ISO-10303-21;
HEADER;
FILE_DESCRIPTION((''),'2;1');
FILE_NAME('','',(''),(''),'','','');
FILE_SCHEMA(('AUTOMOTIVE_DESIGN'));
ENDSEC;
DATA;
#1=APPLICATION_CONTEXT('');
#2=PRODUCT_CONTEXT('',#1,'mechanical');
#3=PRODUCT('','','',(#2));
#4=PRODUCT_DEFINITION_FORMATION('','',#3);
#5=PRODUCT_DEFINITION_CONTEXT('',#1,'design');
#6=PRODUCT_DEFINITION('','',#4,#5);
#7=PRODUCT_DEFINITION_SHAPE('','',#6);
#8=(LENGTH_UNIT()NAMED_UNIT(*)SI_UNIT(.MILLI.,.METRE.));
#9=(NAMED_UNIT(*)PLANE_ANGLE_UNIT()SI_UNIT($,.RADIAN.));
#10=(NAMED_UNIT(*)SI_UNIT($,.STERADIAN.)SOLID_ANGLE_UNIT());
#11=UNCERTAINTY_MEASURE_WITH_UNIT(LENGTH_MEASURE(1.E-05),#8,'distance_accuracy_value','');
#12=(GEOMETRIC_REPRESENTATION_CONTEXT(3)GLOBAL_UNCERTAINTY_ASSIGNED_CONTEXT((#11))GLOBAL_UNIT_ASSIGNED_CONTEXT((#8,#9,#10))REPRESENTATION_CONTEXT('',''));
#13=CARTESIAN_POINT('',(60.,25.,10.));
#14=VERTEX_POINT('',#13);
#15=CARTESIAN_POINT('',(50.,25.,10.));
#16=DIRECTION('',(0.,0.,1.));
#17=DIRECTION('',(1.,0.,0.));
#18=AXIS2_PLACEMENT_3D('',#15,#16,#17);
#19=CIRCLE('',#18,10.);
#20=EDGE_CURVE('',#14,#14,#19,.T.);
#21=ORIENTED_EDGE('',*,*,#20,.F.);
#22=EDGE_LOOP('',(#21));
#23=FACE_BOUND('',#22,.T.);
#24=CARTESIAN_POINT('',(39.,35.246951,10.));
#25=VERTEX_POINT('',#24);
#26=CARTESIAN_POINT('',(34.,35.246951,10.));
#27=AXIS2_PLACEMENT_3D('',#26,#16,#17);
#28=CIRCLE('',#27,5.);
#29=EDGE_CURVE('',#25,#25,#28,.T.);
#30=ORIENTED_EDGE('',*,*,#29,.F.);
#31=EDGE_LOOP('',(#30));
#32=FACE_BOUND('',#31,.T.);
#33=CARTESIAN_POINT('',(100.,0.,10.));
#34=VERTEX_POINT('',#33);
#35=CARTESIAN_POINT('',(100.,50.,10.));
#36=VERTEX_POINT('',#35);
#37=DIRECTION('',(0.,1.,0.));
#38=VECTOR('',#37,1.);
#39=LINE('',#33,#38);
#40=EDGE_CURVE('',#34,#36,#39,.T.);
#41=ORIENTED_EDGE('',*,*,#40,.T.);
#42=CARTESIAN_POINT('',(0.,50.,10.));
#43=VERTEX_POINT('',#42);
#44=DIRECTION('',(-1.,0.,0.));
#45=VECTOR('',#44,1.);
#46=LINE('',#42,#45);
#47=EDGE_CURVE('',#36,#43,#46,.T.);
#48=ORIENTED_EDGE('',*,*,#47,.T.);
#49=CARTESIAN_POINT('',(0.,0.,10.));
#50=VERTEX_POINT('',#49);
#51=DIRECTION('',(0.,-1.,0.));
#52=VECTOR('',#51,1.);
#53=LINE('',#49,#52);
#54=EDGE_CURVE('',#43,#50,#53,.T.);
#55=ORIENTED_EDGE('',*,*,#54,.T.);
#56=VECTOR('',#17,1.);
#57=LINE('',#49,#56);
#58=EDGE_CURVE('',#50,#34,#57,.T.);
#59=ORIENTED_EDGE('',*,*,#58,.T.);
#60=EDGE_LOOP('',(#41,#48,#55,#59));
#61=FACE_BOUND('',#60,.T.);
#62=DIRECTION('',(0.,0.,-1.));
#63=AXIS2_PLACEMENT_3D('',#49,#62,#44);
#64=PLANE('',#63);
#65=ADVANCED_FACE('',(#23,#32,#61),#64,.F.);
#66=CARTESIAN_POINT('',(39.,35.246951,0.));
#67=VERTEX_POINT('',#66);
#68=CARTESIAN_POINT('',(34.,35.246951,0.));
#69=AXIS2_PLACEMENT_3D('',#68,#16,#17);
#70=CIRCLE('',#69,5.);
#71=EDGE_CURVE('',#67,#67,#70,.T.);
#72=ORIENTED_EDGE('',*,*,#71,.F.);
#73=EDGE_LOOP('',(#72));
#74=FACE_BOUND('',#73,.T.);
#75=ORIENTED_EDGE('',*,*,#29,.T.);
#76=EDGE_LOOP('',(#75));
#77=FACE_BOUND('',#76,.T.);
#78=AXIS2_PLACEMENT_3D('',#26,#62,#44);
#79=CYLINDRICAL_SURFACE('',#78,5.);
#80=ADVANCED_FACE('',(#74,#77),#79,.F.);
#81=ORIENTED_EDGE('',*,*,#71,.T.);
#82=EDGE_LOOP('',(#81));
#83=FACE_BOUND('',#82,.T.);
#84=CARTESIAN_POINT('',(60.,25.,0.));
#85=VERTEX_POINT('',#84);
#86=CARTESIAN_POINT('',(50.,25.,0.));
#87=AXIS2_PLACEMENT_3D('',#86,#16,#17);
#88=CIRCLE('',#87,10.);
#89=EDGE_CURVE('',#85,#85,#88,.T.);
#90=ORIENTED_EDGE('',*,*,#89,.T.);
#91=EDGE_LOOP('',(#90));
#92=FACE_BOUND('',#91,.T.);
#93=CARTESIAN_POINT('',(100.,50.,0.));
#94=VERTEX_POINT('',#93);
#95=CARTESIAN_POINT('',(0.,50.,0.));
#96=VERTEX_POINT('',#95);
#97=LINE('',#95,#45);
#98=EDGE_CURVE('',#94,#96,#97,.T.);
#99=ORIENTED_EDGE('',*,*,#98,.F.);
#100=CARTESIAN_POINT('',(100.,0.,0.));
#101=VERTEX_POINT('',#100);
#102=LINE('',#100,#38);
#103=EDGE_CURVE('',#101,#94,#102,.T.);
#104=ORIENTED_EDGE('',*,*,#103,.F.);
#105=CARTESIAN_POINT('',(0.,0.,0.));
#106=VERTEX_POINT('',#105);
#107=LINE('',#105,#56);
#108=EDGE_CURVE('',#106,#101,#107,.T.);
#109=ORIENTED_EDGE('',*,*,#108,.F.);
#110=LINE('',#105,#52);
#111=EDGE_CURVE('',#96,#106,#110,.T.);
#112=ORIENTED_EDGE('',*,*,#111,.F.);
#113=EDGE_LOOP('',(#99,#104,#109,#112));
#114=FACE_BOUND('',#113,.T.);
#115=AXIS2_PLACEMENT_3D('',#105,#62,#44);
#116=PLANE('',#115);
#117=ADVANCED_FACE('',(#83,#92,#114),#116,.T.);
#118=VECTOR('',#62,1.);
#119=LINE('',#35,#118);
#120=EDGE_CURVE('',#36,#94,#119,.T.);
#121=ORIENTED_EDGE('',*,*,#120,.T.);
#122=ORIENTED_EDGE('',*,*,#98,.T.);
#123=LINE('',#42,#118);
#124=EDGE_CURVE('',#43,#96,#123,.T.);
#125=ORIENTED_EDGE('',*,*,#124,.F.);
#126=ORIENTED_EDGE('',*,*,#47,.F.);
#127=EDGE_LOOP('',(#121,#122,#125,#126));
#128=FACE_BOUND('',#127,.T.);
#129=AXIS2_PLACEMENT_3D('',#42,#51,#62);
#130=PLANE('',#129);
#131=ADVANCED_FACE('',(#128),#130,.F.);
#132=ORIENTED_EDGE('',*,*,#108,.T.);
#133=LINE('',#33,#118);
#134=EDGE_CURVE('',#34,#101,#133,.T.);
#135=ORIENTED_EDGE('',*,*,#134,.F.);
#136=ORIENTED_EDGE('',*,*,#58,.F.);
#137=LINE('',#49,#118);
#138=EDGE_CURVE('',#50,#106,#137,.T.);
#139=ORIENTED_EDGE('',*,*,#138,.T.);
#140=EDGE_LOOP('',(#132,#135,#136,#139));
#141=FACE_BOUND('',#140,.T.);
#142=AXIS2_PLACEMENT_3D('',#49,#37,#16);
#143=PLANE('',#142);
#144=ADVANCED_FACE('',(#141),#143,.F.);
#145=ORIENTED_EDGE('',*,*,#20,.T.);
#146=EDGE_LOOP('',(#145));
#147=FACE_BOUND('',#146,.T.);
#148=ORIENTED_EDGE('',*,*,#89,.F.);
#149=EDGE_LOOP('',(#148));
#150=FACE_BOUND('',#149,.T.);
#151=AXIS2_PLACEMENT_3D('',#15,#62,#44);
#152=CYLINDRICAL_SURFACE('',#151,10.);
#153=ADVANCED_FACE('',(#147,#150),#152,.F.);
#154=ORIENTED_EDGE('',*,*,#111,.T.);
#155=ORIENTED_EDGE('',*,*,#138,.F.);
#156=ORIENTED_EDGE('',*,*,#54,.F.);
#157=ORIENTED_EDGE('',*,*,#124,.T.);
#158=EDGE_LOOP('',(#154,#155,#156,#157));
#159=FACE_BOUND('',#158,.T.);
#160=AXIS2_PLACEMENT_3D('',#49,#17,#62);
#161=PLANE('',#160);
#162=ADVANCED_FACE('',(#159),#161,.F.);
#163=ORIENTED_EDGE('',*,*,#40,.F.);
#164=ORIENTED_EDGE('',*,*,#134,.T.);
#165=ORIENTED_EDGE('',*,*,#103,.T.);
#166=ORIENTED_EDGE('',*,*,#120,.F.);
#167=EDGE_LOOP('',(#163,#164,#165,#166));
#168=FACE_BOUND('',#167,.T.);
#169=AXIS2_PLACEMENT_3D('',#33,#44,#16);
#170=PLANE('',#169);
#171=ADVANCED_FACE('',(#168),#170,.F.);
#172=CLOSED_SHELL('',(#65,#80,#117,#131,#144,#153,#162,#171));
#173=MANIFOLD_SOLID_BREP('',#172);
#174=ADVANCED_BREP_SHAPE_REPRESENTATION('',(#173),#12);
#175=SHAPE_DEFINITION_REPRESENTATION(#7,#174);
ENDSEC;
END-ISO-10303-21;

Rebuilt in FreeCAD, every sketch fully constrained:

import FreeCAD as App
import Part
import Sketcher

V = App.Vector
Q = App.Units.Quantity

doc = App.newDocument("Part")
params = doc.addObject("Spreadsheet::Sheet", "Params")
for row, (alias, value) in enumerate([
    ("sketch1_diameter", "20 mm"),
    ("sketch1_diameter2", "10 mm"),
    ("sketch1_width", "100 mm"),
    ("sketch1_height", "50 mm"),
    ("pad1_length", "10 mm"),
], start=1):
    params.set(f"A{row}", alias)
    params.set(f"B{row}", "=" + value)
    params.setAlias(f"B{row}", alias)

body = doc.addObject("PartDesign::Body", "Body")

# Sketch on XY plane
sketch1 = body.newObject("Sketcher::SketchObject", "Sketch")
sketch1.AttachmentSupport = (doc.getObject("XY_Plane"), [""])
sketch1.MapMode = "FlatFace"
sketch1.addGeometry([
    Part.LineSegment(V(0, 50, 0), V(0, 0, 0)),  # 0
    Part.LineSegment(V(0, 0, 0), V(100, 0, 0)),  # 1
    Part.LineSegment(V(100, 0, 0), V(100, 50, 0)),  # 2
    Part.LineSegment(V(100, 50, 0), V(0, 50, 0)),  # 3
    Part.Circle(V(50, 25, 0), V(0, 0, 1), 10),  # 4
    Part.Circle(V(34, 35.246951, 0), V(0, 0, 1), 5),  # 5
], False)
sketch1.addConstraint([
    Sketcher.Constraint("Coincident", 0, 2, 1, 1),
    Sketcher.Constraint("Coincident", 1, 2, 2, 1),
    Sketcher.Constraint("Coincident", 2, 2, 3, 1),
    Sketcher.Constraint("Coincident", 3, 2, 0, 1),
    Sketcher.Constraint("Vertical", 0),
    Sketcher.Constraint("Horizontal", 1),
    Sketcher.Constraint("Vertical", 2),
    Sketcher.Constraint("Horizontal", 3),
    Sketcher.Constraint("Coincident", 0, 2, -1, 1),
    Sketcher.Constraint("Diameter", 4, Q("20 mm")),
    Sketcher.Constraint("Diameter", 5, Q("10 mm")),
    Sketcher.Constraint("DistanceX", 1, 1, 1, 2, Q("100 mm")),
    Sketcher.Constraint("DistanceY", 0, 2, 0, 1, Q("50 mm")),
    Sketcher.Constraint("DistanceX", -1, 1, 4, 3, Q("50 mm")),
    Sketcher.Constraint("DistanceY", -1, 1, 4, 3, Q("25 mm")),
    Sketcher.Constraint("DistanceX", -1, 1, 5, 3, Q("34 mm")),
    Sketcher.Constraint("DistanceY", -1, 1, 5, 3, Q("35.246951 mm")),
])
sketch1.setExpression("Constraints[9]", "Params.sketch1_diameter")
sketch1.setExpression("Constraints[10]", "Params.sketch1_diameter2")
sketch1.setExpression("Constraints[11]", "Params.sketch1_width")
sketch1.setExpression("Constraints[12]", "Params.sketch1_height")
pad1 = body.newObject("PartDesign::Pad", "Pad")
pad1.Profile = sketch1
pad1.setExpression("Length", "Params.pad1_length")

doc.recompute()
